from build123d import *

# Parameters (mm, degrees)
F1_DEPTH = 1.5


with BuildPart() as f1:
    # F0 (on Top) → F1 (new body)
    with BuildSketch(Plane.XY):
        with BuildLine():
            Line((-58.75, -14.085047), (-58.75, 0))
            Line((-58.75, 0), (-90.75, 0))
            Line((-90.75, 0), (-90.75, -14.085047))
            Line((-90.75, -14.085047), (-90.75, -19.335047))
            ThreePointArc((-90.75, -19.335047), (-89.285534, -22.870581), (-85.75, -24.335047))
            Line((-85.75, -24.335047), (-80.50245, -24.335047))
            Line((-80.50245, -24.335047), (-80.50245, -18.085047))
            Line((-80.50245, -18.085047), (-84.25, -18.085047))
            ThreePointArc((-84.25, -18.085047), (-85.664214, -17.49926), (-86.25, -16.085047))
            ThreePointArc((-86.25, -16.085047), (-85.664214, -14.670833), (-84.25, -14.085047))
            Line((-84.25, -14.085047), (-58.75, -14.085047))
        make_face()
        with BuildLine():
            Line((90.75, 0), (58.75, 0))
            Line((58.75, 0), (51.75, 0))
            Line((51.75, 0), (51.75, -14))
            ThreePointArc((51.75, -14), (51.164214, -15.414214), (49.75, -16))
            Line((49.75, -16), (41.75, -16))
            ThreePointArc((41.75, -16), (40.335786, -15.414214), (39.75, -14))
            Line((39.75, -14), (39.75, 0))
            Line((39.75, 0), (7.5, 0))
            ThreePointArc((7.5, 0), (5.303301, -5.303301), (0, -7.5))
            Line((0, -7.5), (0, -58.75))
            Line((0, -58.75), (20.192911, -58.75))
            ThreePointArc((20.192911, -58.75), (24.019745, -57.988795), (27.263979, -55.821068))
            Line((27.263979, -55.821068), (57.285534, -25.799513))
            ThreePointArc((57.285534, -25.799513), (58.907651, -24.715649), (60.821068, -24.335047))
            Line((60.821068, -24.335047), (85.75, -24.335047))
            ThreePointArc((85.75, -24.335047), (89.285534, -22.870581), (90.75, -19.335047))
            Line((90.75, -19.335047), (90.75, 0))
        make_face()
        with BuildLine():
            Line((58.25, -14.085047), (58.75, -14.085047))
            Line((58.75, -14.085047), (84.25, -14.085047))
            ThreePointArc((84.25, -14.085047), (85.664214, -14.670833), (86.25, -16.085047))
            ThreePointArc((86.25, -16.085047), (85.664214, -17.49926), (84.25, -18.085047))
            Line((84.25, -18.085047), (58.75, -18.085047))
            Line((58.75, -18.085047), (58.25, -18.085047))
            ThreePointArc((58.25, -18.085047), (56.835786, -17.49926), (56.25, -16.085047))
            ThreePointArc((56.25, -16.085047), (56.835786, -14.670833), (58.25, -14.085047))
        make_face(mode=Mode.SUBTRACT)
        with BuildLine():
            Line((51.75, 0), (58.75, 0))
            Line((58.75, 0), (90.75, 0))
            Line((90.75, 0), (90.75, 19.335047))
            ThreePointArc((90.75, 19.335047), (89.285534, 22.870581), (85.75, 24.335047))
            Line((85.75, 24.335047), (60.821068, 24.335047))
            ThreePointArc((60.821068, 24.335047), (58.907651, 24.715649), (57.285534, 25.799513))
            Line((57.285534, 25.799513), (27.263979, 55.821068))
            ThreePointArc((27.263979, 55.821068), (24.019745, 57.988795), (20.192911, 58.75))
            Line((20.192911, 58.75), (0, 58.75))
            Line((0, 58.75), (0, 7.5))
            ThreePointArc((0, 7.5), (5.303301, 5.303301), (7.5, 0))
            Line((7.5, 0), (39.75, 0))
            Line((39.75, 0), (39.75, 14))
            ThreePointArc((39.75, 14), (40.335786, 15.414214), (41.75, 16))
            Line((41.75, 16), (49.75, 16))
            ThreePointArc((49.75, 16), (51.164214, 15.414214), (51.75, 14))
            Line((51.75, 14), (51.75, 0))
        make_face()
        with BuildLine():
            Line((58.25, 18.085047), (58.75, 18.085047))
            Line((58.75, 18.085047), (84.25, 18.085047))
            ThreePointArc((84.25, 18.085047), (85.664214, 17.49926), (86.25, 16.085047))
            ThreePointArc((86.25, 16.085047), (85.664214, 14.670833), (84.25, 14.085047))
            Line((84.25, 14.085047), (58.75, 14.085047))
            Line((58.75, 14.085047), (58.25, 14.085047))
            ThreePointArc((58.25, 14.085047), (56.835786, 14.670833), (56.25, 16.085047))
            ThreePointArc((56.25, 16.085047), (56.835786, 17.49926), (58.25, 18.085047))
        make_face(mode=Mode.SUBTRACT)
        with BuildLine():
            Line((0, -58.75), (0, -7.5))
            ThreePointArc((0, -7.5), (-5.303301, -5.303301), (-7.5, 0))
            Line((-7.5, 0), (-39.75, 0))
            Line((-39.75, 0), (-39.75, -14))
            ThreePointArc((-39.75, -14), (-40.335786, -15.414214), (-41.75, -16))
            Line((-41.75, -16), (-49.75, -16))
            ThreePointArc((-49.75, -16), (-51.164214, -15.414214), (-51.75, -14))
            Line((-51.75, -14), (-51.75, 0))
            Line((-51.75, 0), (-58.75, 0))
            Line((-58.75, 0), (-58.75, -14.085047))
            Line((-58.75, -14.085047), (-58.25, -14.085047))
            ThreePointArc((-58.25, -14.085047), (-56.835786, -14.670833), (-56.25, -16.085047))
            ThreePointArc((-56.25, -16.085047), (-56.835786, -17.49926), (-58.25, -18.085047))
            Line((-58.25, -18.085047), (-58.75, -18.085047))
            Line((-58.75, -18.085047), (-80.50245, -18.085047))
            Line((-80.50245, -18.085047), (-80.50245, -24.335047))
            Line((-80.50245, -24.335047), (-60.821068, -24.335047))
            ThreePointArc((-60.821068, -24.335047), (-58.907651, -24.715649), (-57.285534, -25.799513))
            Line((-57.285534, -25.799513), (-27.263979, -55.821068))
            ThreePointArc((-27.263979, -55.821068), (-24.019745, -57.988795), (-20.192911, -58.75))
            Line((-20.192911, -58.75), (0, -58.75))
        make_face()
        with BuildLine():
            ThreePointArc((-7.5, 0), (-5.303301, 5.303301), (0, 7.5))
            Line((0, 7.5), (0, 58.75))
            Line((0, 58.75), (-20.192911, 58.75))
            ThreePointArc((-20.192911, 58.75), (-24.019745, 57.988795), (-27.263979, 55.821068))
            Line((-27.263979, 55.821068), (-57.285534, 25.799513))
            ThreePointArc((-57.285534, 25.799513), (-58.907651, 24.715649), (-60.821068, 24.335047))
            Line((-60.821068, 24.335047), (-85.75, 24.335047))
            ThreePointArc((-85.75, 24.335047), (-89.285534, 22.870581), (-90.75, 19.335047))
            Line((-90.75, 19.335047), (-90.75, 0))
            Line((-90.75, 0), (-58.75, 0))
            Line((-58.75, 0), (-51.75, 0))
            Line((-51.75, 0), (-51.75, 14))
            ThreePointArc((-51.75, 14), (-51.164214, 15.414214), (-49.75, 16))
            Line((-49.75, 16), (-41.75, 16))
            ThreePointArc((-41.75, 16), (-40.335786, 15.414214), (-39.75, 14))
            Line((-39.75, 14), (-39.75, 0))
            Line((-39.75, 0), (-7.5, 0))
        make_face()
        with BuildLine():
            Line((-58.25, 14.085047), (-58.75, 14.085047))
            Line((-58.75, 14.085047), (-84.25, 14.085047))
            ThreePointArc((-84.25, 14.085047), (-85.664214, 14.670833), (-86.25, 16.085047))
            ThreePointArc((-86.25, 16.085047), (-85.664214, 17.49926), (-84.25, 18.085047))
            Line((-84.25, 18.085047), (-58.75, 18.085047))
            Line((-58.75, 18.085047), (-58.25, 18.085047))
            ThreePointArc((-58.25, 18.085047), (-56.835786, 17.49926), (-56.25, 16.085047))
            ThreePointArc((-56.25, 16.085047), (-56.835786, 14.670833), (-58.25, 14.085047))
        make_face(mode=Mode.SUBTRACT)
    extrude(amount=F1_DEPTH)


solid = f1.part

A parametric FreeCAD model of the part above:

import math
import FreeCAD as App
import Part
import Sketcher
from FreeCAD import Vector

doc = App.newDocument("Part")
params = doc.addObject("Spreadsheet::Sheet", "Params")
for row, (alias, value) in enumerate([
    ("sketch1_radius", "5 mm"),
    ("sketch1_radius2", "2 mm"),
    ("sketch1_radius3", "7.5 mm"),
    ("sketch1_width", "26 mm"),
    ("sketch1_width2", "8 mm"),
    ("pad1_length", "1.5 mm"),
], start=1):
    params.set(f"A{row}", alias)
    params.set(f"B{row}", "=" + value)
    params.setAlias(f"B{row}", alias)

body = doc.addObject("PartDesign::Body", "Body")

sketch1 = body.newObject("Sketcher::SketchObject", "Sketch")
sketch1.AttachmentSupport = (doc.getObject("XY_Plane"), [""])
sketch1.MapMode = "FlatFace"
sketch1.addGeometry([
    Part.ArcOfCircle(Part.Circle(Vector(-85.8, -19.3, 0), Vector(0, 0, 1), 5), math.radians(180), math.radians(270)),
    Part.LineSegment(Vector(-85.8, -24.3, 0), Vector(-60.8, -24.3, 0)),
    Part.ArcOfCircle(Part.Circle(Vector(-60.8, -29.3, 0), Vector(0, 0, 1), 5), math.radians(45), math.radians(90)),
    Part.LineSegment(Vector(-57.3, -25.8, 0), Vector(-27.3, -55.8, 0)),
    Part.ArcOfCircle(Part.Circle(Vector(-20.2, -48.7, 0), Vector(0, 0, 1), 10), math.radians(-135), math.radians(-90)),
    Part.LineSegment(Vector(-20.2, -58.8, 0), Vector(20.2, -58.8, 0)),
    Part.ArcOfCircle(Part.Circle(Vector(20.2, -48.7, 0), Vector(0, 0, 1), 10), math.radians(-90), math.radians(-45)),
    Part.LineSegment(Vector(27.3, -55.8, 0), Vector(57.3, -25.8, 0)),
    Part.ArcOfCircle(Part.Circle(Vector(60.8, -29.3, 0), Vector(0, 0, 1), 5), math.radians(90), math.radians(135)),
    Part.LineSegment(Vector(60.8, -24.3, 0), Vector(85.8, -24.3, 0)),
    Part.ArcOfCircle(Part.Circle(Vector(85.8, -19.3, 0), Vector(0, 0, 1), 5), math.radians(-90), math.radians(0)),
    Part.LineSegment(Vector(90.8, -19.3, 0), Vector(90.8, 19.3, 0)),
    Part.ArcOfCircle(Part.Circle(Vector(85.8, 19.3, 0), Vector(0, 0, 1), 5), math.radians(0), math.radians(90)),
    Part.LineSegment(Vector(85.8, 24.3, 0), Vector(60.8, 24.3, 0)),
    Part.ArcOfCircle(Part.Circle(Vector(60.8, 29.3, 0), Vector(0, 0, 1), 5), math.radians(-135), math.radians(-90)),
    Part.LineSegment(Vector(57.3, 25.8, 0), Vector(27.3, 55.8, 0)),
    Part.ArcOfCircle(Part.Circle(Vector(20.2, 48.7, 0), Vector(0, 0, 1), 10), math.radians(45), math.radians(90)),
    Part.LineSegment(Vector(20.2, 58.8, 0), Vector(-20.2, 58.8, 0)),
    Part.ArcOfCircle(Part.Circle(Vector(-20.2, 48.7, 0), Vector(0, 0, 1), 10), math.radians(90), math.radians(135)),
    Part.LineSegment(Vector(-27.3, 55.8, 0), Vector(-57.3, 25.8, 0)),
    Part.ArcOfCircle(Part.Circle(Vector(-60.8, 29.3, 0), Vector(0, 0, 1), 5), math.radians(-90), math.radians(-45)),
    Part.LineSegment(Vector(-60.8, 24.3, 0), Vector(-85.8, 24.3, 0)),
    Part.ArcOfCircle(Part.Circle(Vector(-85.8, 19.3, 0), Vector(0, 0, 1), 5), math.radians(90), math.radians(180)),
    Part.LineSegment(Vector(-90.8, 19.3, 0), Vector(-90.8, -19.3, 0)),
    Part.ArcOfCircle(Part.Circle(Vector(-84.2, -16.1, 0), Vector(0, 0, 1), 2), math.radians(-180), math.radians(-90)),
    Part.ArcOfCircle(Part.Circle(Vector(-84.3, -16.1, 0), Vector(0, 0, 1), 2), math.radians(90), math.radians(180)),
    Part.LineSegment(Vector(-84.2, -14.1, 0), Vector(-58.2, -14.1, 0)),
    Part.ArcOfCircle(Part.Circle(Vector(-58.2, -16.1, 0), Vector(0, 0, 1), 2), math.radians(0), math.radians(90)),
    Part.ArcOfCircle(Part.Circle(Vector(-58.3, -16.1, 0), Vector(0, 0, 1), 2), math.radians(-90), math.radians(0)),
    Part.LineSegment(Vector(-58.2, -18.1, 0), Vector(-84.2, -18.1, 0)),
    Part.ArcOfCircle(Part.Circle(Vector(58.2, -16.1, 0), Vector(0, 0, 1), 2), math.radians(90), math.radians(180)),
    Part.LineSegment(Vector(58.2, -14.1, 0), Vector(84.2, -14.1, 0)),
    Part.ArcOfCircle(Part.Circle(Vector(84.3, -16.1, 0), Vector(0, 0, 1), 2), math.radians(0), math.radians(90)),
    Part.ArcOfCircle(Part.Circle(Vector(84.2, -16.1, 0), Vector(0, 0, 1), 2), math.radians(-90), math.radians(0)),
    Part.LineSegment(Vector(84.2, -18.1, 0), Vector(58.2, -18.1, 0)),
    Part.ArcOfCircle(Part.Circle(Vector(58.3, -16.1, 0), Vector(0, 0, 1), 2), math.radians(-180), math.radians(-90)),
    Part.ArcOfCircle(Part.Circle(Vector(-41.7, -14, 0), Vector(0, 0, 1), 2), math.radians(-90), math.radians(0)),
    Part.LineSegment(Vector(-41.8, -16, 0), Vector(-49.8, -16, 0)),
    Part.ArcOfCircle(Part.Circle(Vector(-49.8, -14, 0), Vector(0, 0, 1), 2), math.radians(180), math.radians(270)),
    Part.LineSegment(Vector(-51.8, -14, 0), Vector(-51.8, 14, 0)),
    Part.ArcOfCircle(Part.Circle(Vector(-49.8, 14, 0), Vector(0, 0, 1), 2), math.radians(90), math.radians(180)),
    Part.LineSegment(Vector(-49.8, 16, 0), Vector(-41.8, 16, 0)),
    Part.ArcOfCircle(Part.Circle(Vector(-41.7, 14, 0), Vector(0, 0, 1), 2), math.radians(0), math.radians(90)),
    Part.LineSegment(Vector(-39.8, 14, 0), Vector(-39.8, -14, 0)),
    Part.ArcOfCircle(Part.Circle(Vector(-58.2, 16.1, 0), Vector(0, 0, 1), 2), math.radians(-90), math.radians(0)),
    Part.LineSegment(Vector(-58.2, 14.1, 0), Vector(-84.2, 14.1, 0)),
    Part.ArcOfCircle(Part.Circle(Vector(-84.3, 16.1, 0), Vector(0, 0, 1), 2), math.radians(180), math.radians(270)),
    Part.ArcOfCircle(Part.Circle(Vector(-84.2, 16.1, 0), Vector(0, 0, 1), 2), math.radians(90), math.radians(180)),
    Part.LineSegment(Vector(-84.2, 18.1, 0), Vector(-58.2, 18.1, 0)),
    Part.ArcOfCircle(Part.Circle(Vector(-58.3, 16.1, 0), Vector(0, 0, 1), 2), math.radians(0), math.radians(90)),
    Part.ArcOfCircle(Part.Circle(Vector(0, 0, 0), Vector(0, 0, 1), 7.5), math.radians(0), math.radians(90)),
    Part.ArcOfCircle(Part.Circle(Vector(0, 0, 0), Vector(0, 0, 1), 7.5), math.radians(-90), math.radians(0)),
    Part.ArcOfCircle(Part.Circle(Vector(0, 0, 0), Vector(0, 0, 1), 7.5), math.radians(180), math.radians(270)),
    Part.ArcOfCircle(Part.Circle(Vector(0, 0, 0), Vector(0, 0, 1), 7.5), math.radians(90), math.radians(180)),
    Part.ArcOfCircle(Part.Circle(Vector(49.8, -14, 0), Vector(0, 0, 1), 2), math.radians(-90), math.radians(0)),
    Part.LineSegment(Vector(49.8, -16, 0), Vector(41.8, -16, 0)),
    Part.ArcOfCircle(Part.Circle(Vector(41.7, -14, 0), Vector(0, 0, 1), 2), math.radians(180), math.radians(270)),
    Part.LineSegment(Vector(39.8, -14, 0), Vector(39.8, 14, 0)),
    Part.ArcOfCircle(Part.Circle(Vector(41.7, 14, 0), Vector(0, 0, 1), 2), math.radians(90), math.radians(180)),
    Part.LineSegment(Vector(41.8, 16, 0), Vector(49.8, 16, 0)),
    Part.ArcOfCircle(Part.Circle(Vector(49.8, 14, 0), Vector(0, 0, 1), 2), math.radians(0), math.radians(90)),
    Part.LineSegment(Vector(51.8, 14, 0), Vector(51.8, -14, 0)),
    Part.LineSegment(Vector(58.2, 18.1, 0), Vector(84.2, 18.1, 0)),
    Part.ArcOfCircle(Part.Circle(Vector(84.2, 16.1, 0), Vector(0, 0, 1), 2), math.radians(0), math.radians(90)),
    Part.ArcOfCircle(Part.Circle(Vector(84.3, 16.1, 0), Vector(0, 0, 1), 2), math.radians(-90), math.radians(0)),
    Part.LineSegment(Vector(84.2, 14.1, 0), Vector(58.2, 14.1, 0)),
    Part.ArcOfCircle(Part.Circle(Vector(58.2, 16.1, 0), Vector(0, 0, 1), 2), math.radians(180), math.radians(270)),
    Part.ArcOfCircle(Part.Circle(Vector(58.3, 16.1, 0), Vector(0, 0, 1), 2), math.radians(90), math.radians(180)),
], False)
sketch1.addConstraint([
    Sketcher.Constraint("Tangent", 0, 2, 1, 1),
    Sketcher.Constraint("Tangent", 1, 2, 2, 2),
    Sketcher.Constraint("Tangent", 2, 1, 3, 1),
    Sketcher.Constraint("Tangent", 3, 2, 4, 1),
    Sketcher.Constraint("Tangent", 4, 2, 5, 1),
    Sketcher.Constraint("Tangent", 5, 2, 6, 1),
    Sketcher.Constraint("Tangent", 6, 2, 7, 1),
    Sketcher.Constraint("Tangent", 7, 2, 8, 2),
    Sketcher.Constraint("Tangent", 8, 1, 9, 1),
    Sketcher.Constraint("Tangent", 9, 2, 10, 1),
    Sketcher.Constraint("Tangent", 10, 2, 11, 1),
    Sketcher.Constraint("Tangent", 11, 2, 12, 1),
    Sketcher.Constraint("Tangent", 12, 2, 13, 1),
    Sketcher.Constraint("Tangent", 13, 2, 14, 2),
    Sketcher.Constraint("Tangent", 14, 1, 15, 1),
    Sketcher.Constraint("Tangent", 15, 2, 16, 1),
    Sketcher.Constraint("Tangent", 16, 2, 17, 1),
    Sketcher.Constraint("Tangent", 17, 2, 18, 1),
    Sketcher.Constraint("Tangent", 18, 2, 19, 1),
    Sketcher.Constraint("Tangent", 19, 2, 20, 2),
    Sketcher.Constraint("Tangent", 20, 1, 21, 1),
    Sketcher.Constraint("Tangent", 21, 2, 22, 1),
    Sketcher.Constraint("Tangent", 22, 2, 23, 1),
    Sketcher.Constraint("Tangent", 23, 2, 0, 1),
    Sketcher.Constraint("Tangent", 24, 1, 25, 2),
    Sketcher.Constraint("Tangent", 25, 1, 26, 1),
    Sketcher.Constraint("Tangent", 26, 2, 27, 2),
    Sketcher.Constraint("Tangent", 27, 1, 28, 2),
    Sketcher.Constraint("Tangent", 28, 1, 29, 1),
    Sketcher.Constraint("Tangent", 29, 2, 24, 2),
    Sketcher.Constraint("Tangent", 30, 1, 31, 1),
    Sketcher.Constraint("Tangent", 31, 2, 32, 2),
    Sketcher.Constraint("Tangent", 32, 1, 33, 2),
    Sketcher.Constraint("Tangent", 33, 1, 34, 1),
    Sketcher.Constraint("Tangent", 34, 2, 35, 2),
    Sketcher.Constraint("Tangent", 35, 1, 30, 2),
    Sketcher.Constraint("Tangent", 36, 1, 37, 1),
    Sketcher.Constraint("Tangent", 37, 2, 38, 2),
    Sketcher.Constraint("Tangent", 38, 1, 39, 1),
    Sketcher.Constraint("Tangent", 39, 2, 40, 2),
    Sketcher.Constraint("Tangent", 40, 1, 41, 1),
    Sketcher.Constraint("Tangent", 41, 2, 42, 2),
    Sketcher.Constraint("Tangent", 42, 1, 43, 1),
    Sketcher.Constraint("Tangent", 43, 2, 36, 2),
    Sketcher.Constraint("Tangent", 44, 1, 45, 1),
    Sketcher.Constraint("Tangent", 45, 2, 46, 2),
    Sketcher.Constraint("Tangent", 46, 1, 47, 2),
    Sketcher.Constraint("Tangent", 47, 1, 48, 1),
    Sketcher.Constraint("Tangent", 48, 2, 49, 2),
    Sketcher.Constraint("Tangent", 49, 1, 44, 2),
    Sketcher.Constraint("Tangent", 50, 1, 51, 2),
    Sketcher.Constraint("Tangent", 51, 1, 52, 2),
    Sketcher.Constraint("Tangent", 52, 1, 53, 2),
    Sketcher.Constraint("Tangent", 53, 1, 50, 2),
    Sketcher.Constraint("Tangent", 54, 1, 55, 1),
    Sketcher.Constraint("Tangent", 55, 2, 56, 2),
    Sketcher.Constraint("Tangent", 56, 1, 57, 1),
    Sketcher.Constraint("Tangent", 57, 2, 58, 2),
    Sketcher.Constraint("Tangent", 58, 1, 59, 1),
    Sketcher.Constraint("Tangent", 59, 2, 60, 2),
    Sketcher.Constraint("Tangent", 60, 1, 61, 1),
    Sketcher.Constraint("Tangent", 61, 2, 54, 2),
    Sketcher.Constraint("Tangent", 62, 2, 63, 2),
    Sketcher.Constraint("Tangent", 63, 1, 64, 2),
    Sketcher.Constraint("Tangent", 64, 1, 65, 1),
    Sketcher.Constraint("Tangent", 65, 2, 66, 2),
    Sketcher.Constraint("Tangent", 66, 1, 67, 2),
    Sketcher.Constraint("Tangent", 67, 1, 62, 1),
    Sketcher.Constraint("Horizontal", 1),
    Sketcher.Constraint("Horizontal", 5),
    Sketcher.Constraint("Horizontal", 9),
    Sketcher.Constraint("Vertical", 11),
    Sketcher.Constraint("Horizontal", 13),
    Sketcher.Constraint("Horizontal", 17),
    Sketcher.Constraint("Horizontal", 21),
    Sketcher.Constraint("Vertical", 23),
    Sketcher.Constraint("Horizontal", 26),
    Sketcher.Constraint("Horizontal", 29),
    Sketcher.Constraint("Horizontal", 31),
    Sketcher.Constraint("Horizontal", 34),
    Sketcher.Constraint("Horizontal", 37),
    Sketcher.Constraint("Vertical", 39),
    Sketcher.Constraint("Horizontal", 41),
    Sketcher.Constraint("Vertical", 43),
    Sketcher.Constraint("Horizontal", 45),
    Sketcher.Constraint("Horizontal", 48),
    Sketcher.Constraint("Horizontal", 55),
    Sketcher.Constraint("Vertical", 57),
    Sketcher.Constraint("Horizontal", 59),
    Sketcher.Constraint("Vertical", 61),
    Sketcher.Constraint("Horizontal", 62),
    Sketcher.Constraint("Horizontal", 65),
    Sketcher.Constraint("Coincident", 50, 3, -1, 1),
    Sketcher.Constraint("Equal", 0, 2),
    Sketcher.Constraint("Equal", 4, 6),
    Sketcher.Constraint("Equal", 2, 8),
    Sketcher.Constraint("Equal", 8, 10),
    Sketcher.Constraint("Equal", 10, 12),
    Sketcher.Constraint("Equal", 12, 14),
    Sketcher.Constraint("Equal", 6, 16),
    Sketcher.Constraint("Equal", 16, 18),
    Sketcher.Constraint("Equal", 14, 20),
    Sketcher.Constraint("Equal", 20, 22),
    Sketcher.Constraint("Equal", 24, 25),
    Sketcher.Constraint("Equal", 25, 27),
    Sketcher.Constraint("Equal", 28, 30),
    Sketcher.Constraint("Equal", 30, 32),
    Sketcher.Constraint("Equal", 32, 33),
    Sketcher.Constraint("Equal", 35, 36),
    Sketcher.Constraint("Equal", 36, 38),
    Sketcher.Constraint("Equal", 38, 40),
    Sketcher.Constraint("Equal", 40, 42),
    Sketcher.Constraint("Equal", 42, 44),
    Sketcher.Constraint("Equal", 44, 46),
    Sketcher.Constraint("Equal", 46, 47),
    Sketcher.Constraint("Equal", 50, 51),
    Sketcher.Constraint("Equal", 49, 54),
    Sketcher.Constraint("Equal", 54, 56),
    Sketcher.Constraint("Equal", 56, 58),
    Sketcher.Constraint("Equal", 58, 60),
    Sketcher.Constraint("Equal", 60, 63),
    Sketcher.Constraint("Equal", 63, 64),
    Sketcher.Constraint("Equal", 64, 66),
    Sketcher.Constraint("Symmetric", 0, 3, 12, 3, -1, 1),
    Sketcher.Constraint("Symmetric", 4, 3, 16, 3, -1, 1),
    Sketcher.Constraint("Symmetric", 8, 3, 20, 3, -1, 1),
    Sketcher.Constraint("Symmetric", 30, 3, 44, 3, -1, 1),
    Sketcher.Constraint("Symmetric", 40, 3, 54, 3, -1, 1),
    Sketcher.Constraint("Symmetric", 36, 3, 58, 3, -1, 1),
    Sketcher.Constraint("Symmetric", 24, 3, 63, 3, -1, 1),
    Sketcher.Constraint("Symmetric", 32, 1, 46, 1, -1, 1),
    Sketcher.Constraint("Symmetric", 27, 1, 66, 1, -1, 1),
    Sketcher.Constraint("Symmetric", 2, 3, 8, 3, -2),
    Sketcher.Constraint("Symmetric", 27, 3, 30, 3, -2),
    Sketcher.Constraint("Symmetric", 15, 2, 18, 2, -2),
    Sketcher.Constraint("Symmetric", 24, 1, 32, 1, -2),
    Sketcher.Constraint("PointOnObject", 50, 1, -1),
    Sketcher.Constraint("PointOnObject", 51, 1, -2),
    Sketcher.Constraint("PointOnObject", 52, 1, -1),
    Sketcher.Constraint("PointOnObject", 53, 1, -2),
    Sketcher.Constraint("Perpendicular", 3, 7),
    Sketcher.Constraint("Perpendicular", 15, 19),
    Sketcher.Constraint("Horizontal", 38, 3, 54, 3),
    Sketcher.Constraint("Horizontal", 35, 3, 24, 1),
    Sketcher.Constraint("Horizontal", 24, 1, 27, 1),
    Sketcher.Constraint("Horizontal", 32, 1, 35, 1),
    Sketcher.Constraint("Horizontal", 46, 1, 49, 1),
    Sketcher.Constraint("Horizontal", 49, 1, 63, 1),
    Sketcher.Constraint("Radius", 0, 5.0),
    Sketcher.Constraint("Radius", 24, 2.0),
    Sketcher.Constraint("Radius", 50, 7.5),
    Sketcher.Constraint("DistanceX", 26, 1, 26, 2, 26.0),
    Sketcher.Constraint("DistanceX", 37, 2, 37, 1, 8.0),
    Sketcher.Constraint("DistanceY", 39, 1, 39, 2, 28.0),
    Sketcher.Constraint("DistanceX", 0, 3, -1, 1, 85.75),
    Sketcher.Constraint("DistanceX", 24, 3, -1, 1, 84.25),
    Sketcher.Constraint("DistanceX", 36, 3, -1, 1, 41.749999),
    Sketcher.Constraint("DistanceY", 4, 2, -1, 1, 58.75),
    Sketcher.Constraint("Radius", 4, 10.000007),
    Sketcher.Constraint("DistanceX", 5, 1, 5, 2, 40.385822),
    Sketcher.Constraint("Distance", 3, 42.45689),
    Sketcher.Constraint("DistanceY", 24, 3, -1, 1, 16.085047),
])
sketch1.setExpression("Constraints[148]", "Params.sketch1_radius")
sketch1.setExpression("Constraints[149]", "Params.sketch1_radius2")
sketch1.setExpression("Constraints[150]", "Params.sketch1_radius3")
sketch1.setExpression("Constraints[151]", "Params.sketch1_width")
sketch1.setExpression("Constraints[152]", "Params.sketch1_width2")
pad1 = body.newObject("PartDesign::Pad", "Pad")
pad1.Profile = sketch1
pad1.setExpression("Length", "Params.pad1_length")

doc.recompute()
